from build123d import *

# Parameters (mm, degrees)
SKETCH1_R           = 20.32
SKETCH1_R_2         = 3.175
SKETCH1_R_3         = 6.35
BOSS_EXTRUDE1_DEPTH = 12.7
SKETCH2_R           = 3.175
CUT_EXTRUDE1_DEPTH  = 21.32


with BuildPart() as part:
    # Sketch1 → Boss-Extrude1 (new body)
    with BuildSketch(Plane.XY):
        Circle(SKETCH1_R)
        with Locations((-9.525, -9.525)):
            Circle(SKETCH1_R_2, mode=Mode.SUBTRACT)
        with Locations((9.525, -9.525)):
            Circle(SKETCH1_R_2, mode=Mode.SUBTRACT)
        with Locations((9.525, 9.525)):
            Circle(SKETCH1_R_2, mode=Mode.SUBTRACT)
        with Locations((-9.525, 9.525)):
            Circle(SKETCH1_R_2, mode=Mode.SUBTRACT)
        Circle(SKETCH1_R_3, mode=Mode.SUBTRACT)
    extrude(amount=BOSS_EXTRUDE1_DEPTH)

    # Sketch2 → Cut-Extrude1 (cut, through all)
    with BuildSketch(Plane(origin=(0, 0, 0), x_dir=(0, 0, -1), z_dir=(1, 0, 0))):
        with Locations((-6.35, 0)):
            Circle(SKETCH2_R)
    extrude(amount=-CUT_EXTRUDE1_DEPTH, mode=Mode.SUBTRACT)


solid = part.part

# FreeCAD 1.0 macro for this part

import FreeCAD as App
import Part
import Sketcher
Q = App.Units.Quantity

doc = App.newDocument("Part")
body = doc.addObject("PartDesign::Body", "Body")

# Sketch on XY plane
sketch1 = body.newObject("Sketcher::SketchObject", "Sketch")
sketch1.AttachmentSupport = (doc.getObject("XY_Plane"), [""])
sketch1.MapMode = "FlatFace"
sketch1.addGeometry([
    Part.Circle(App.Vector(0, 0, 0), App.Vector(0, 0, 1), 20.32),  # 0
    Part.Circle(App.Vector(-9.525, -9.525, 0), App.Vector(0, 0, 1), 3.175),  # 1
    Part.Circle(App.Vector(0, 0, 0), App.Vector(0, 0, 1), 6.35),  # 2
    Part.Circle(App.Vector(9.525, -9.525, 0), App.Vector(0, 0, 1), 3.175),  # 3
    Part.Circle(App.Vector(-9.525, 9.525, 0), App.Vector(0, 0, 1), 3.175),  # 4
    Part.Circle(App.Vector(9.525, 9.525, 0), App.Vector(0, 0, 1), 3.175),  # 5
], False)
sketch1.addConstraint([
    Sketcher.Constraint("Coincident", 0, 3, -1, 1),
    Sketcher.Constraint("Coincident", 2, 3, -1, 1),
    Sketcher.Constraint("Equal", 1, 3),
    Sketcher.Constraint("Equal", 3, 4),
    Sketcher.Constraint("Equal", 4, 5),
    Sketcher.Constraint("Symmetric", 3, 3, 4, 3, -1, 1),
    Sketcher.Constraint("Symmetric", 1, 3, 5, 3, -1, 1),
    Sketcher.Constraint("Symmetric", 1, 3, 3, 3, -2),
    Sketcher.Constraint("Diameter", 0, Q("1.6 in")),
    Sketcher.Constraint("Diameter", 2, Q("0.5 in")),
    Sketcher.Constraint("Diameter", 1, Q("0.25 in")),
    Sketcher.Constraint("DistanceX", 1, 3, 3, 3, Q("0.75 in")),
    Sketcher.Constraint("DistanceY", 1, 3, 4, 3, Q("0.75 in")),
])
pad1 = body.newObject("PartDesign::Pad", "Pad")
pad1.Profile = sketch1
pad1.Length = Q("0.5 in")

# Sketch on YZ plane
sketch2 = body.newObject("Sketcher::SketchObject", "Sketch001")
sketch2.AttachmentSupport = (doc.getObject("YZ_Plane"), [""])
sketch2.MapMode = "FlatFace"
sketch2.addGeometry(Part.Circle(App.Vector(0, 6.35, 0), App.Vector(0, 0, 1), 3.175), False)
sketch2.addConstraint([
    Sketcher.Constraint("PointOnObject", 0, 3, -2),
    Sketcher.Constraint("Diameter", 0, Q("0.25 in")),
    Sketcher.Constraint("DistanceY", -1, 1, 0, 3, Q("0.25 in")),
])
pocket1 = body.newObject("PartDesign::Pocket", "Pocket")
pocket1.Profile = sketch2
pocket1.Type = "ThroughAll"

doc.recompute()
